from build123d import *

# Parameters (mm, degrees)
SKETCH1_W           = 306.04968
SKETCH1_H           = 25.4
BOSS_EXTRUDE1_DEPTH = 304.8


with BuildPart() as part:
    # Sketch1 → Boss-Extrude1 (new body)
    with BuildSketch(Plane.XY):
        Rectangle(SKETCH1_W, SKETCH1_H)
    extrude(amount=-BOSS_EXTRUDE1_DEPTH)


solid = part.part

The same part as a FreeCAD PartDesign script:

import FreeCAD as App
import Part
import Sketcher
Q = App.Units.Quantity

doc = App.newDocument("Part")
body = doc.addObject("PartDesign::Body", "Body")

sketch1 = body.newObject("Sketcher::SketchObject", "Sketch")
sketch1.AttachmentSupport = (doc.getObject("XY_Plane"), [""])
sketch1.MapMode = "FlatFace"
sketch1.addGeometry(Part.LineSegment(App.Vector(-153, 13, 0), App.Vector(-153, -13, 0)), False)
sketch1.addGeometry(Part.LineSegment(App.Vector(-153, -13, 0), App.Vector(153, -13, 0)), False)
sketch1.addGeometry(Part.LineSegment(App.Vector(153, -13, 0), App.Vector(153, 13, 0)), False)
sketch1.addGeometry(Part.LineSegment(App.Vector(153, 13, 0), App.Vector(-153, 13, 0)), False)
sketch1.addConstraint(Sketcher.Constraint("Coincident", 0, 2, 1, 1))
sketch1.addConstraint(Sketcher.Constraint("Coincident", 1, 2, 2, 1))
sketch1.addConstraint(Sketcher.Constraint("Coincident", 2, 2, 3, 1))
sketch1.addConstraint(Sketcher.Constraint("Coincident", 3, 2, 0, 1))
sketch1.addConstraint(Sketcher.Constraint("Vertical", 0))
sketch1.addConstraint(Sketcher.Constraint("Horizontal", 1))
sketch1.addConstraint(Sketcher.Constraint("Vertical", 2))
sketch1.addConstraint(Sketcher.Constraint("Horizontal", 3))
sketch1.addConstraint(Sketcher.Constraint("Symmetric", 0, 2, 2, 2, -1, 1))
sketch1.addConstraint(Sketcher.Constraint("DistanceY", 0, 2, 0, 1, Q("1 in")))
sketch1.addConstraint(Sketcher.Constraint("DistanceX", 1, 1, 1, 2, Q("12.0492 in")))
pad1 = body.newObject("PartDesign::Pad", "Pad")
pad1.Profile = sketch1
pad1.Length = Q("12 in")
pad1.Reversed = True

doc.recompute()
